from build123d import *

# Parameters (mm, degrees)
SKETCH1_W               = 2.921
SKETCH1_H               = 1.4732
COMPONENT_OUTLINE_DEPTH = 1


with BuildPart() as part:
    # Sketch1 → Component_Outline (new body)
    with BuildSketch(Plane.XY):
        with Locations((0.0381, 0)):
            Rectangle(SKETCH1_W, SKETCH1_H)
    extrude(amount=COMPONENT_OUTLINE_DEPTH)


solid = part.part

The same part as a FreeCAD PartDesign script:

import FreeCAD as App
import Part
import Sketcher
Q = App.Units.Quantity

doc = App.newDocument("Part")
body = doc.addObject("PartDesign::Body", "Body")

# Sketch on XY plane
sketch1 = doc.addObject("Sketcher::SketchObject", "Sketch")
body.addObject(sketch1)
sketch1.AttachmentSupport = (doc.XY_Plane, [""])
sketch1.MapMode = "FlatFace"
sketch1.addGeometry([
    Part.LineSegment(App.Vector(-1.4, 0.7, 0), App.Vector(-1.4, -0.7, 0)),
    Part.LineSegment(App.Vector(-1.4, -0.7, 0), App.Vector(1.5, -0.7, 0)),
    Part.LineSegment(App.Vector(1.5, -0.7, 0), App.Vector(1.5, 0.7, 0)),
    Part.LineSegment(App.Vector(1.5, 0.7, 0), App.Vector(-1.4, 0.7, 0)),
], False)
sketch1.addConstraint([
    Sketcher.Constraint("Coincident", 0, 2, 1, 1),
    Sketcher.Constraint("Coincident", 1, 2, 2, 1),
    Sketcher.Constraint("Coincident", 2, 2, 3, 1),
    Sketcher.Constraint("Coincident", 3, 2, 0, 1),
    Sketcher.Constraint("Vertical", 0),
    Sketcher.Constraint("Horizontal", 1),
    Sketcher.Constraint("Vertical", 2),
    Sketcher.Constraint("Horizontal", 3),
    Sketcher.Constraint("DistanceX", 1, 1, 1, 2, Q("0.115 in")),
    Sketcher.Constraint("DistanceY", 0, 2, 0, 1, Q("0.058 in")),
    Sketcher.Constraint("DistanceX", 0, 2, -1, 1, Q("0.056 in")),
    Sketcher.Constraint("DistanceY", 0, 2, -1, 1, Q("0.029 in")),
])
pad1 = doc.addObject("PartDesign::Pad", "Pad")
body.addObject(pad1)
pad1.Profile = sketch1
pad1.Length = 1

doc.recompute()
